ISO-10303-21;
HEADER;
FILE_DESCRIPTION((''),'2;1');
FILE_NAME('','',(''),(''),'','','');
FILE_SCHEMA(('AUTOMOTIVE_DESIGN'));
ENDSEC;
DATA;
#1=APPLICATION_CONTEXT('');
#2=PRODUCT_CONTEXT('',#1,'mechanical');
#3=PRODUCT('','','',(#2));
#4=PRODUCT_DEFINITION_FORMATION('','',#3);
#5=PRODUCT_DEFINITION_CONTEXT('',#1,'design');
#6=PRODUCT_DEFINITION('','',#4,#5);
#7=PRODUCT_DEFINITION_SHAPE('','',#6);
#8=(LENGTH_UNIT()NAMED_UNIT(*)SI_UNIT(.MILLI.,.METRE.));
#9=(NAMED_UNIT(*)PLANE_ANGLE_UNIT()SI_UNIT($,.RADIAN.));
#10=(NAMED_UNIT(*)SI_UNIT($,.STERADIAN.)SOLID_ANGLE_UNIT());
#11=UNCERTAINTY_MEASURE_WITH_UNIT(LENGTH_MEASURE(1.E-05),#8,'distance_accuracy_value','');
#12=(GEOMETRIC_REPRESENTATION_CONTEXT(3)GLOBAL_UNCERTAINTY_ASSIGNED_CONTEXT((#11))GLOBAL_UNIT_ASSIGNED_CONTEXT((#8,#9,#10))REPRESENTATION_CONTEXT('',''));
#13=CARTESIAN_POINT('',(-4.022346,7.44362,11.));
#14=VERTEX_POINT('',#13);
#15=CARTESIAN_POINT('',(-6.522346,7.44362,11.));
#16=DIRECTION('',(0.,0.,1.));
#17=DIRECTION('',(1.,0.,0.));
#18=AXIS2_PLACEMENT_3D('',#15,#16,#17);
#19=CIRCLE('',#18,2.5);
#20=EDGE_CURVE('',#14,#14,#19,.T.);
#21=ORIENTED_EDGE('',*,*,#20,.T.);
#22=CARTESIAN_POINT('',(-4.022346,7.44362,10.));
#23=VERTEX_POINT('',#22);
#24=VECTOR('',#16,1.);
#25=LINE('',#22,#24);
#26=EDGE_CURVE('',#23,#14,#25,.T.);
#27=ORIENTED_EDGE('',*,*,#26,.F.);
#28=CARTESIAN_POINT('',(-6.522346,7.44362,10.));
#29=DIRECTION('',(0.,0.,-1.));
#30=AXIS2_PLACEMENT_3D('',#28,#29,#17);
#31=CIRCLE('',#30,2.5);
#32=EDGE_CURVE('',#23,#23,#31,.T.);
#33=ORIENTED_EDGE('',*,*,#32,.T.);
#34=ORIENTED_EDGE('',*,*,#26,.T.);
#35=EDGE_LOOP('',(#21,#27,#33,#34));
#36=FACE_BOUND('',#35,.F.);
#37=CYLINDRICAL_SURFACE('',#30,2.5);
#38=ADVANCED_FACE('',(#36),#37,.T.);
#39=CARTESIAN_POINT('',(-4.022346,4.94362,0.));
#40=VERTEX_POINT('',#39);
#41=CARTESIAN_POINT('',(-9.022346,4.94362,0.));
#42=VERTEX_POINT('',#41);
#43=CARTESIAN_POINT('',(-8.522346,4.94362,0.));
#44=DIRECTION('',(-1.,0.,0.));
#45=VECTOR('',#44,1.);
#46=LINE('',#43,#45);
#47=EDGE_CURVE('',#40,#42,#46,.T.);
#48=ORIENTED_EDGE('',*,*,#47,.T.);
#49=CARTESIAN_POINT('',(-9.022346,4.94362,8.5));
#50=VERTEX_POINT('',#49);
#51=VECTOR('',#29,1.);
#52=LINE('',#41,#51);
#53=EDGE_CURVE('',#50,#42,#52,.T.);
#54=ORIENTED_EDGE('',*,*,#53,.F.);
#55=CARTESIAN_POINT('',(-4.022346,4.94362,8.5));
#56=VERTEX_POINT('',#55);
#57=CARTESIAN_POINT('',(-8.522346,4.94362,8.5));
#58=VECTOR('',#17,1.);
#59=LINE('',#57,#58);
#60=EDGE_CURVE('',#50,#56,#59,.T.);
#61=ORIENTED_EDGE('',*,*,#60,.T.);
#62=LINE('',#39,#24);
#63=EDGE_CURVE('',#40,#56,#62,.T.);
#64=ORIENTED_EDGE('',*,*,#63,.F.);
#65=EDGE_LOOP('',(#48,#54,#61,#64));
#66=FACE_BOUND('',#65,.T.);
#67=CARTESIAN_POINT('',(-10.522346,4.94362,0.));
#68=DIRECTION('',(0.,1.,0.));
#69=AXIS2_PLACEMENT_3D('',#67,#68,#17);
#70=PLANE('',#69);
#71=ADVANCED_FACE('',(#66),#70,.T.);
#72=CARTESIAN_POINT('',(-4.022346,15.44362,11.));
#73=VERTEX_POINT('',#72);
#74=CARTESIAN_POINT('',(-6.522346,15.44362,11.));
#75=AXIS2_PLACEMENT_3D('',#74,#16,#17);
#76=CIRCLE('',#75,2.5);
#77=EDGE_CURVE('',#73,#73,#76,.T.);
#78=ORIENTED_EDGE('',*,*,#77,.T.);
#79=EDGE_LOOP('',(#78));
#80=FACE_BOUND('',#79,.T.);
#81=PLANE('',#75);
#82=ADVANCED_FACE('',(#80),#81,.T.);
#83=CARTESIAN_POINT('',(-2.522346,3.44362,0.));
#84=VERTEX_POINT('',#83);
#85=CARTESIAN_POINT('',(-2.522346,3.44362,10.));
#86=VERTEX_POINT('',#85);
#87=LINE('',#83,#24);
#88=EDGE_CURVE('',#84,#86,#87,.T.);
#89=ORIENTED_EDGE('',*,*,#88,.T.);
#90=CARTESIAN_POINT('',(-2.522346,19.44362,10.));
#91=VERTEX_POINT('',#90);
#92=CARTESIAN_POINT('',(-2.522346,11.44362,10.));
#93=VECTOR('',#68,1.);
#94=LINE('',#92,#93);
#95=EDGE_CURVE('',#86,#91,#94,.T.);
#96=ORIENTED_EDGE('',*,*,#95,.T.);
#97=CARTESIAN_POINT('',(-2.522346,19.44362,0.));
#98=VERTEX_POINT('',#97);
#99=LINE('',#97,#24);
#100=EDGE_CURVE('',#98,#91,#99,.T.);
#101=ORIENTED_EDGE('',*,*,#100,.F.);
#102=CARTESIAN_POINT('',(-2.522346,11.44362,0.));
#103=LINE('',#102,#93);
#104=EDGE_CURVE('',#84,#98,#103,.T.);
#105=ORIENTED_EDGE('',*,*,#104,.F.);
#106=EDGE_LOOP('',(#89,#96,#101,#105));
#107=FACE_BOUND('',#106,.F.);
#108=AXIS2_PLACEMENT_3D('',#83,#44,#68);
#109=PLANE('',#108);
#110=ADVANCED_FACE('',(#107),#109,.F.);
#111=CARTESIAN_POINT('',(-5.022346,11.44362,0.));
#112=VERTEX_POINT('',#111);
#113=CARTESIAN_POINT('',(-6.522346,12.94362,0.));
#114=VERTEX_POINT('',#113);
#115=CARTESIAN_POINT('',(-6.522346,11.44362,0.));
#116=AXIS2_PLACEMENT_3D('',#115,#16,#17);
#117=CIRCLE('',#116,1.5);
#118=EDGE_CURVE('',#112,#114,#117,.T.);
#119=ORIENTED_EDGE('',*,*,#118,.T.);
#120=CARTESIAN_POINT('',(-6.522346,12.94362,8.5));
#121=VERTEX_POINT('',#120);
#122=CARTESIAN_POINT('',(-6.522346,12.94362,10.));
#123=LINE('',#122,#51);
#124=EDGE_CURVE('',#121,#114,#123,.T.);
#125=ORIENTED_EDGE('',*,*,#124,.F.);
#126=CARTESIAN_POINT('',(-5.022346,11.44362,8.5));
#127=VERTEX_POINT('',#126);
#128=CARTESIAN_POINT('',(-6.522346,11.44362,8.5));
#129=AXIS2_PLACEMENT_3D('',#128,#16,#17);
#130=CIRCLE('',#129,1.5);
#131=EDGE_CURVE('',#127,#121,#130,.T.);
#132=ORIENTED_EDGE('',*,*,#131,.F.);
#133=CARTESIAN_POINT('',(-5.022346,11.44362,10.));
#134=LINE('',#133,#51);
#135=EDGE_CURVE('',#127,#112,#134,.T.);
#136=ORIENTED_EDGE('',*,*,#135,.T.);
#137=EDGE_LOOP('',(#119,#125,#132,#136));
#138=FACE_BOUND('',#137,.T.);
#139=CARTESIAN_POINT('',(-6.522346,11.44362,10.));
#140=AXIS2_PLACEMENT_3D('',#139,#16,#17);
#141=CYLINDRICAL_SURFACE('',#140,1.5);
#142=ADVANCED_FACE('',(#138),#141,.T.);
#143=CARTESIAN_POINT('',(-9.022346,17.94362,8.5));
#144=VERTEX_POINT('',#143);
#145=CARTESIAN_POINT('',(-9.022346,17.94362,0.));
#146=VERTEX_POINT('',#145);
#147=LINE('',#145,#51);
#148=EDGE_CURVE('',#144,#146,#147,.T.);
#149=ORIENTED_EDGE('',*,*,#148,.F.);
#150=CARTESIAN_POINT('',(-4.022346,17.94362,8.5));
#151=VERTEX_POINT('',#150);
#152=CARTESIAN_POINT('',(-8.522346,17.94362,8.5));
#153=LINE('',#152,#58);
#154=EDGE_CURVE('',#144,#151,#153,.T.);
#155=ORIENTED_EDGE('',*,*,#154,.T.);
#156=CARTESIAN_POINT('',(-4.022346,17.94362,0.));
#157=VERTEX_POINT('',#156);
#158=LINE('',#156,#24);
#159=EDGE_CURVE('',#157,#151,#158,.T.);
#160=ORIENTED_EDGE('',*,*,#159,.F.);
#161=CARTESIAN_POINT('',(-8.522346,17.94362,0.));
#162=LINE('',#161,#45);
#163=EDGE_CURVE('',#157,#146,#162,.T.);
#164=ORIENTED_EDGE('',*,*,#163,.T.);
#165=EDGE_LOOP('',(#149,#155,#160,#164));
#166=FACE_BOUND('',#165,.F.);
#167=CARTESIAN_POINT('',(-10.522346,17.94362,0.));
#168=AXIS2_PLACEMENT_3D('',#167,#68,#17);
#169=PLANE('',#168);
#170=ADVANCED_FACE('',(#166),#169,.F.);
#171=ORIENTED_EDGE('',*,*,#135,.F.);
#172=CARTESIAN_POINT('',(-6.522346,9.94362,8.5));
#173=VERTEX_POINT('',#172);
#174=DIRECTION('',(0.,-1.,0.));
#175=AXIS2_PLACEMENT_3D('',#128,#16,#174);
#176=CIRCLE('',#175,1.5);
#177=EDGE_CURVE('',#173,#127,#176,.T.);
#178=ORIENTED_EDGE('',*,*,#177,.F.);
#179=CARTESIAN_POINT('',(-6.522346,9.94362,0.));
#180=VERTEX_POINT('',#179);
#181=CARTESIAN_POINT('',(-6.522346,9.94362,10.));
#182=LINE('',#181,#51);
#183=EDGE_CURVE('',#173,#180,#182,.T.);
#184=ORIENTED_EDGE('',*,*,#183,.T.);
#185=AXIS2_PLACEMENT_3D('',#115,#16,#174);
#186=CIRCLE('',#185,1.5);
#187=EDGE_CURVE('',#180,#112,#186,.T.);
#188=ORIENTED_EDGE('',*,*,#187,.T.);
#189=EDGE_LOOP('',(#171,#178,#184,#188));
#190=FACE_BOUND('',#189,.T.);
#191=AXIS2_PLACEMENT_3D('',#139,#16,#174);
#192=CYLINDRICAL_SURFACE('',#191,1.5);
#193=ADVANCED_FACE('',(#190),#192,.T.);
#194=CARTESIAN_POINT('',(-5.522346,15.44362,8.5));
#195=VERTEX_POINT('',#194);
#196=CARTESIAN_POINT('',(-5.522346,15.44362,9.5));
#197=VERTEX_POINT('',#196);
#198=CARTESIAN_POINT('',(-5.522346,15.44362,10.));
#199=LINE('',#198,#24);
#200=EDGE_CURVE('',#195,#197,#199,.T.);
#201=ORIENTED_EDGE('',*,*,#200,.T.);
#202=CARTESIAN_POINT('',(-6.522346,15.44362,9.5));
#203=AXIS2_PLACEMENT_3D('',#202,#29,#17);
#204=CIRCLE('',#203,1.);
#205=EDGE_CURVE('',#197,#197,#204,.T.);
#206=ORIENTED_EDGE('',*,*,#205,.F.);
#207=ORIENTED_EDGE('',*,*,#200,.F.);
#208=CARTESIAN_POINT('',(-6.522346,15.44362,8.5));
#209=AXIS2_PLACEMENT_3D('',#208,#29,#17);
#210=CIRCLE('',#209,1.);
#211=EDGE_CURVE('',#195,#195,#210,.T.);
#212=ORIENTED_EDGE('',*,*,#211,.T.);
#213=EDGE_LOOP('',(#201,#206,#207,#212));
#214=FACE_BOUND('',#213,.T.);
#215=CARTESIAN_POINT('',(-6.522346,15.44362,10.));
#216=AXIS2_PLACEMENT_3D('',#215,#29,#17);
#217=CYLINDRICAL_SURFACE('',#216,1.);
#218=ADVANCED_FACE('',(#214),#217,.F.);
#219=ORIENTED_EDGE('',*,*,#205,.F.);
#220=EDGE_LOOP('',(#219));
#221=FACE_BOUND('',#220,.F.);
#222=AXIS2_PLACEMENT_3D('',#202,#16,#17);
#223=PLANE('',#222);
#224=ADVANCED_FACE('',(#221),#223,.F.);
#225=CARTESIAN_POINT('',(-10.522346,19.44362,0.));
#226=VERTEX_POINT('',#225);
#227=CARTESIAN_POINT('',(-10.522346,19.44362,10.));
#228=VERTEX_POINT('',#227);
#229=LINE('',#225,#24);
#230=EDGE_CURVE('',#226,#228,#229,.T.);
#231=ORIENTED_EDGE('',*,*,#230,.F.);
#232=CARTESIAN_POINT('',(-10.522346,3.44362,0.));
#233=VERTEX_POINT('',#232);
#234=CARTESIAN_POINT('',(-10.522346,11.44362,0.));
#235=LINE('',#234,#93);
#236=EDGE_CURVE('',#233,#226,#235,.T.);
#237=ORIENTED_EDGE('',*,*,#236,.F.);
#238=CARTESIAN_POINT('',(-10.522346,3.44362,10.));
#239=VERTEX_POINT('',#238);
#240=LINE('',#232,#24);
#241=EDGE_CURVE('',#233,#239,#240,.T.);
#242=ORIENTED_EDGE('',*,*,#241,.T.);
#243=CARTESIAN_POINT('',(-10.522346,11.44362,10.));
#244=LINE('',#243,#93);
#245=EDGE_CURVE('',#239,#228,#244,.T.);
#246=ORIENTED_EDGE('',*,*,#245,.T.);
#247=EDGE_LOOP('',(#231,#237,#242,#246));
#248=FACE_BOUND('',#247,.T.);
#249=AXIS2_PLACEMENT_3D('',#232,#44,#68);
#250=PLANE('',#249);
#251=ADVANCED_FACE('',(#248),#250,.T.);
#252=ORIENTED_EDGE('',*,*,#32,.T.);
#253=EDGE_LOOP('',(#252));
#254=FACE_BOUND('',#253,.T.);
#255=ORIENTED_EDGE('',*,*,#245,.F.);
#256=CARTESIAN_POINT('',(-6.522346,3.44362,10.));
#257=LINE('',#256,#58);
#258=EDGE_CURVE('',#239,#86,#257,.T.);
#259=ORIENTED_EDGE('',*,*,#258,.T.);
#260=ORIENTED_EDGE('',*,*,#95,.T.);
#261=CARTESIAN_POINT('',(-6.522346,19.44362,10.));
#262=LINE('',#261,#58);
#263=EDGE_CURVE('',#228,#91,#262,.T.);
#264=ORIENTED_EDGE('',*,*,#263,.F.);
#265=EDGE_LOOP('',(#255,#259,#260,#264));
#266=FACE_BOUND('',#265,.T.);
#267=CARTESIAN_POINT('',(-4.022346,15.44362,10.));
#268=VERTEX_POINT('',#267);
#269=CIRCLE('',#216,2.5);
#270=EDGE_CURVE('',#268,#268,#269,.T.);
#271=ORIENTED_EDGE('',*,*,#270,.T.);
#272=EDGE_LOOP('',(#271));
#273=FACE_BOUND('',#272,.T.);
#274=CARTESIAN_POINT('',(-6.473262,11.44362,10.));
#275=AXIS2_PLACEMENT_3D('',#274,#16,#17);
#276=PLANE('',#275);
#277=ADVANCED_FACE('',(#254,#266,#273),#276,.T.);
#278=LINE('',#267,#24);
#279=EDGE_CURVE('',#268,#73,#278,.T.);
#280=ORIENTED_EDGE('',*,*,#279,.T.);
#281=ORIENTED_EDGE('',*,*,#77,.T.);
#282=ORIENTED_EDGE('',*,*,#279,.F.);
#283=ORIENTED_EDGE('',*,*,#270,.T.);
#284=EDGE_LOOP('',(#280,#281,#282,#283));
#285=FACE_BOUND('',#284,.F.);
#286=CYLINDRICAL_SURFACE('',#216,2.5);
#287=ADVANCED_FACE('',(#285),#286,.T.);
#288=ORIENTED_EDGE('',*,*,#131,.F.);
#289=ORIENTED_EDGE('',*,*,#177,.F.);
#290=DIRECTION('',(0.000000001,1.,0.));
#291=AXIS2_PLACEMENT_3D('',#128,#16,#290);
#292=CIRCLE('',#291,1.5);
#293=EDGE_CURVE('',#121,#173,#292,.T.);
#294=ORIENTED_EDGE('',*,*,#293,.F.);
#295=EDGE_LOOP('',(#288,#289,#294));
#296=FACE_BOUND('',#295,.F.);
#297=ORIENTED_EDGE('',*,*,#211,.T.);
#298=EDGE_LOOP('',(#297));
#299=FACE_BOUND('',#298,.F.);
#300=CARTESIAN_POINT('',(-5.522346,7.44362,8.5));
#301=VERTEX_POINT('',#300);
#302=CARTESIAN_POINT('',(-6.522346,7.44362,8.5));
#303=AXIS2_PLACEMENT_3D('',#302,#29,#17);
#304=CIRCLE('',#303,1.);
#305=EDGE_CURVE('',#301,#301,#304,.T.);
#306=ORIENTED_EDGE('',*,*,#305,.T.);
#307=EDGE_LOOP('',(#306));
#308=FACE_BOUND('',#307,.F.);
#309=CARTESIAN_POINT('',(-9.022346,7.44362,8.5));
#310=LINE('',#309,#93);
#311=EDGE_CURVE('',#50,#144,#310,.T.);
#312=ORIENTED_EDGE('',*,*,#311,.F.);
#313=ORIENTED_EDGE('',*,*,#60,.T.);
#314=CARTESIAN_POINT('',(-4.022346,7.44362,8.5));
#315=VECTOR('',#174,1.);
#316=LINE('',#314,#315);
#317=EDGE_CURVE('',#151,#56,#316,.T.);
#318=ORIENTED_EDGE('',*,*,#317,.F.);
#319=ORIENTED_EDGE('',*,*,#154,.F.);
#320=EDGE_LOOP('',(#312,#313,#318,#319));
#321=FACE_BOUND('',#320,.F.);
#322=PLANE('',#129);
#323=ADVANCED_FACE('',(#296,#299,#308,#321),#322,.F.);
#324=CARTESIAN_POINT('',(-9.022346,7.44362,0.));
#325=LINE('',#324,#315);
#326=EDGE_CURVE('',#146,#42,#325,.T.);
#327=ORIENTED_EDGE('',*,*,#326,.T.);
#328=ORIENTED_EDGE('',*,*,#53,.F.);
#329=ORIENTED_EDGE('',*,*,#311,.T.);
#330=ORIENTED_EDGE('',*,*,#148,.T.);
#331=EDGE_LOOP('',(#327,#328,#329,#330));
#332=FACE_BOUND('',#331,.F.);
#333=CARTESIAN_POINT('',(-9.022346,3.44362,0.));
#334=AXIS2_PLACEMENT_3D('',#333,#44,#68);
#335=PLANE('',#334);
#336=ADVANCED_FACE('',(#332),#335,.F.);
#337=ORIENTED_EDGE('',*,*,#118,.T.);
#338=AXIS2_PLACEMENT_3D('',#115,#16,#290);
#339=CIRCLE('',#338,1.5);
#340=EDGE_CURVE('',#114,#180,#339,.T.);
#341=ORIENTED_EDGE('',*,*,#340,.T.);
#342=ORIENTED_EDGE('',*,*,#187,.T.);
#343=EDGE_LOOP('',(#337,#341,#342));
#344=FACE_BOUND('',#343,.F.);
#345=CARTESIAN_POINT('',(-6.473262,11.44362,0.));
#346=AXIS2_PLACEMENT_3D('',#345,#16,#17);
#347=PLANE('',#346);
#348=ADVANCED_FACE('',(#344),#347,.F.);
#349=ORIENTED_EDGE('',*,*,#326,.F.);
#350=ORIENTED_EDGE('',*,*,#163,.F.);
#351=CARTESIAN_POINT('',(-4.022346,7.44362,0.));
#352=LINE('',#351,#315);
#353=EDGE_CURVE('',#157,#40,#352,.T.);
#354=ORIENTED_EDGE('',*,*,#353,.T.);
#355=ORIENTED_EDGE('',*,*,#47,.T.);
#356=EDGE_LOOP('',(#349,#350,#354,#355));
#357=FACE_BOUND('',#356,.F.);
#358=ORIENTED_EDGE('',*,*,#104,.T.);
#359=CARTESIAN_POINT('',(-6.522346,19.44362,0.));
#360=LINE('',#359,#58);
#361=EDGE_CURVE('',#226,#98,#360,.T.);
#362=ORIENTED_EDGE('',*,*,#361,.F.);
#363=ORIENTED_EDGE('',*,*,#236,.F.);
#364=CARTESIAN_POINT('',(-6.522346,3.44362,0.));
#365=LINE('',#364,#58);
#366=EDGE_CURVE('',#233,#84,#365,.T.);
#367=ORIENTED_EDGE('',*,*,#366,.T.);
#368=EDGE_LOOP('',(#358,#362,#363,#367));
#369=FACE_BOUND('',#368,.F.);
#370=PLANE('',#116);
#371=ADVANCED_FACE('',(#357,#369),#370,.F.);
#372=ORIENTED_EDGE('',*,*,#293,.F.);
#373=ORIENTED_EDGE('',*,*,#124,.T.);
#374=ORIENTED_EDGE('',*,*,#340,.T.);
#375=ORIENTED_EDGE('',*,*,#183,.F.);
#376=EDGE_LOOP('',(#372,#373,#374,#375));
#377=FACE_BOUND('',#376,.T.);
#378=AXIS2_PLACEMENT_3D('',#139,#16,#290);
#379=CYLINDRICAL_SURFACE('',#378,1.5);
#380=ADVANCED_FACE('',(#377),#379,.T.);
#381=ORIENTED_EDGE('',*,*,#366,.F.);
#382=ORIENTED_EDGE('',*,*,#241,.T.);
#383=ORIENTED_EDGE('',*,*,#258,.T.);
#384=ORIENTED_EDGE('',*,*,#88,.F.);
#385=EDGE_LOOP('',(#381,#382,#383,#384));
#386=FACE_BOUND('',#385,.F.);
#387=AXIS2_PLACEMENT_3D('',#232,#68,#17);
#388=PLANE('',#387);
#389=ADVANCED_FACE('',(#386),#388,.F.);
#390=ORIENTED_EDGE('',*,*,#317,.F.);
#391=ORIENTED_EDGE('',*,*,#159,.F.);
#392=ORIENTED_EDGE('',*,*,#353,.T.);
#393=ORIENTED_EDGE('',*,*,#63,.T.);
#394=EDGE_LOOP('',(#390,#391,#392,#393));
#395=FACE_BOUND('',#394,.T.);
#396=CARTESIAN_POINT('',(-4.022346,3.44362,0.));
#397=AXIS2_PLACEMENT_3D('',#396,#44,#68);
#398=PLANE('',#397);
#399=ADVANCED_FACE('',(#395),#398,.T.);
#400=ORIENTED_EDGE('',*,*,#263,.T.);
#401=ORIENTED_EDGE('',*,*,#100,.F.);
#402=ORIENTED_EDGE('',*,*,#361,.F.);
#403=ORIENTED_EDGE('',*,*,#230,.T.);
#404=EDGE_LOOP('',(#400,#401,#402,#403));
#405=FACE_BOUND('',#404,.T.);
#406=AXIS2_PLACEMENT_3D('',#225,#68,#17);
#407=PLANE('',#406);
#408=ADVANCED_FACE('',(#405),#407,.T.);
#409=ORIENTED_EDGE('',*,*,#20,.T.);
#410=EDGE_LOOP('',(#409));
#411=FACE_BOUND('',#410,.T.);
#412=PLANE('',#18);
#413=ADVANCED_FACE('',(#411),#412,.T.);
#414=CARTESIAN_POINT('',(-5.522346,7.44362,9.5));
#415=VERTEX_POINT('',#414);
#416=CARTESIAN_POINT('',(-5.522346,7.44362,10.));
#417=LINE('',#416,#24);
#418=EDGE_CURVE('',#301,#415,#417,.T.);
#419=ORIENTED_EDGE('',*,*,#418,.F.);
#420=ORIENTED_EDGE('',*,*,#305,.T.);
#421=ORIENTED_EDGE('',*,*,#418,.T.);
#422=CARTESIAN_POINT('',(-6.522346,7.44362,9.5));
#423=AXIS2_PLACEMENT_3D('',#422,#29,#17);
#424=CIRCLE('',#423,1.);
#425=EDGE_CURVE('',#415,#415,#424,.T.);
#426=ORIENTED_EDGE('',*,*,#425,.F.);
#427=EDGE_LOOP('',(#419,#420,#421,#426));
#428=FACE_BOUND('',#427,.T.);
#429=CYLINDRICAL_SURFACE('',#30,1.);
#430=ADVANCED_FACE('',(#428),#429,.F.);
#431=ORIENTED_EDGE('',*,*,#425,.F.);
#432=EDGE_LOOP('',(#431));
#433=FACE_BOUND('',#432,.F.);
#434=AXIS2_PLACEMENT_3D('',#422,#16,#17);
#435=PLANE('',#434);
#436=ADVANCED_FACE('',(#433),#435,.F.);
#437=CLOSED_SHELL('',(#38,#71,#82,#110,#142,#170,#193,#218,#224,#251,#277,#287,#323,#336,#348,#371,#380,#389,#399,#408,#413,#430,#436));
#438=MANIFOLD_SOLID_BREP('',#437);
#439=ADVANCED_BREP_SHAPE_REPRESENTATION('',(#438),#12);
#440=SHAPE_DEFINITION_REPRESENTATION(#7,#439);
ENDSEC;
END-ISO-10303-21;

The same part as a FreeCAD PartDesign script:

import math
import FreeCAD as App
import Part
import Sketcher

V = App.Vector
Q = App.Units.Quantity


def faces_at(feature, points):
    """Names of the faces that lie closest to the given points."""
    faces = feature.Shape.Faces
    near = lambda p: min(range(len(faces)), key=lambda i: faces[i].distToShape(Part.Vertex(*p))[0])
    return sorted({f"Face{near(p) + 1}" for p in points})


def add_polygon(sketch, points):
    """Adds a closed chain of lines whose ends are joined by coincident constraints."""
    first, n = sketch.GeometryCount, len(points)
    for a, b in zip(points, points[1:] + points[:1]):
        sketch.addGeometry(Part.LineSegment(App.Vector(*a, 0), App.Vector(*b, 0)), False)
    for i in range(n):
        sketch.addConstraint(Sketcher.Constraint("Coincident", first + i, 2, first + (i + 1) % n, 1))

doc = App.newDocument("Part")
body = doc.addObject("PartDesign::Body", "Body")

# Sketch on XY plane
sketch1 = doc.addObject("Sketcher::SketchObject", "Sketch")
body.addObject(sketch1)
sketch1.AttachmentSupport = (doc.XY_Plane, [""])
sketch1.MapMode = "FlatFace"
add_polygon(sketch1, [(-11, 19), (-11, 3), (-3, 3), (-3, 19)])  # lines 0-3
sketch1.addConstraint(Sketcher.Constraint("Vertical", 0))
sketch1.addConstraint(Sketcher.Constraint("Horizontal", 1))
sketch1.addConstraint(Sketcher.Constraint("Vertical", 2))
sketch1.addConstraint(Sketcher.Constraint("Horizontal", 3))
sketch1.addConstraint(Sketcher.Constraint("DistanceX", 1, 1, 1, 2, Q("8 mm")))
sketch1.addConstraint(Sketcher.Constraint("DistanceY", 0, 2, 0, 1, Q("16 mm")))
sketch1.addConstraint(Sketcher.Constraint("DistanceY", -1, 1, 0, 2, Q("3.44362 mm")))
sketch1.addConstraint(Sketcher.Constraint("DistanceX", 0, 2, -1, 1, Q("10.522346 mm")))
pad1 = doc.addObject("PartDesign::Pad", "Pad")
body.addObject(pad1)
pad1.Profile = sketch1
pad1.Length = 10

# Sketch on XY plane
sketch2 = doc.addObject("Sketcher::SketchObject", "Sketch001")
body.addObject(sketch2)
sketch2.AttachmentSupport = (doc.XY_Plane, [""])
sketch2.MapMode = "FlatFace"
sketch2.AttachmentOffset = App.Placement(V(0, 0, 10), App.Rotation())
sketch2.addGeometry(Part.Circle(V(-6.5, 7.4, 0), V(0, 0, 1), 2.5), False)
sketch2.addGeometry(Part.Circle(V(-6.5, 15.4, 0), V(0, 0, 1), 2.5), False)
sketch2.addConstraint(Sketcher.Constraint("Equal", 0, 1))
sketch2.addConstraint(Sketcher.Constraint("Vertical", 0, 3, 1, 3))
sketch2.addConstraint(Sketcher.Constraint("Diameter", 0, Q("5 mm")))
sketch2.addConstraint(Sketcher.Constraint("DistanceY", 0, 3, 1, 3, Q("8 mm")))
sketch2.addConstraint(Sketcher.Constraint("DistanceY", -1, 1, 0, 3, Q("7.44362 mm")))
sketch2.addConstraint(Sketcher.Constraint("DistanceX", 0, 3, -1, 1, Q("6.522346 mm")))
pad2 = doc.addObject("PartDesign::Pad", "Pad001")
body.addObject(pad2)
pad2.Profile = sketch2
pad2.Length = 1
doc.recompute()

thickness = doc.addObject("PartDesign::Thickness", "Thickness")
body.addObject(thickness)
thickness.Base = (pad2, faces_at(pad2, [(-6.522, 11.444, 0)]))
thickness.Value = 1.5
thickness.Reversed = True
thickness.Join = "Intersection"

# Sketch on XY plane
sketch3 = doc.addObject("Sketcher::SketchObject", "Sketch002")
body.addObject(sketch3)
sketch3.AttachmentSupport = (doc.XY_Plane, [""])
sketch3.MapMode = "FlatFace"
sketch3.AttachmentOffset = App.Placement(V(0, 0, 10), App.Rotation())
sketch3.addGeometry(Part.ArcOfCircle(Part.Circle(V(-6.5, 11.4, 0), V(0, 0, 1), 1.5), math.radians(-90), math.radians(0)), False)
sketch3.addGeometry(Part.ArcOfCircle(Part.Circle(V(-6.5, 11.4, 0), V(0, 0, 1), 1.5), math.radians(0), math.radians(90)), False)
sketch3.addGeometry(Part.ArcOfCircle(Part.Circle(V(-6.5, 11.4, 0), V(0, 0, 1), 1.5), math.radians(90), math.radians(270)), False)
sketch3.addConstraint(Sketcher.Constraint("Tangent", 0, 2, 1, 1))
sketch3.addConstraint(Sketcher.Constraint("Tangent", 1, 2, 2, 1))
sketch3.addConstraint(Sketcher.Constraint("Tangent", 2, 2, 0, 1))
sketch3.addConstraint(Sketcher.Constraint("Horizontal", 2, 3, 0, 2))
sketch3.addConstraint(Sketcher.Constraint("Vertical", 2, 3, 1, 2))
sketch3.addConstraint(Sketcher.Constraint("Vertical", 1, 2, 2, 2))
sketch3.addConstraint(Sketcher.Constraint("Radius", 0, Q("1.5 mm")))
sketch3.addConstraint(Sketcher.Constraint("DistanceY", -1, 1, 0, 3, Q("11.44362 mm")))
sketch3.addConstraint(Sketcher.Constraint("DistanceX", 0, 3, -1, 1, Q("6.522346 mm")))
pad3 = doc.addObject("PartDesign::Pad", "Pad002")
body.addObject(pad3)
pad3.Profile = sketch3
pad3.Length = 10
pad3.Reversed = True

doc.recompute()
